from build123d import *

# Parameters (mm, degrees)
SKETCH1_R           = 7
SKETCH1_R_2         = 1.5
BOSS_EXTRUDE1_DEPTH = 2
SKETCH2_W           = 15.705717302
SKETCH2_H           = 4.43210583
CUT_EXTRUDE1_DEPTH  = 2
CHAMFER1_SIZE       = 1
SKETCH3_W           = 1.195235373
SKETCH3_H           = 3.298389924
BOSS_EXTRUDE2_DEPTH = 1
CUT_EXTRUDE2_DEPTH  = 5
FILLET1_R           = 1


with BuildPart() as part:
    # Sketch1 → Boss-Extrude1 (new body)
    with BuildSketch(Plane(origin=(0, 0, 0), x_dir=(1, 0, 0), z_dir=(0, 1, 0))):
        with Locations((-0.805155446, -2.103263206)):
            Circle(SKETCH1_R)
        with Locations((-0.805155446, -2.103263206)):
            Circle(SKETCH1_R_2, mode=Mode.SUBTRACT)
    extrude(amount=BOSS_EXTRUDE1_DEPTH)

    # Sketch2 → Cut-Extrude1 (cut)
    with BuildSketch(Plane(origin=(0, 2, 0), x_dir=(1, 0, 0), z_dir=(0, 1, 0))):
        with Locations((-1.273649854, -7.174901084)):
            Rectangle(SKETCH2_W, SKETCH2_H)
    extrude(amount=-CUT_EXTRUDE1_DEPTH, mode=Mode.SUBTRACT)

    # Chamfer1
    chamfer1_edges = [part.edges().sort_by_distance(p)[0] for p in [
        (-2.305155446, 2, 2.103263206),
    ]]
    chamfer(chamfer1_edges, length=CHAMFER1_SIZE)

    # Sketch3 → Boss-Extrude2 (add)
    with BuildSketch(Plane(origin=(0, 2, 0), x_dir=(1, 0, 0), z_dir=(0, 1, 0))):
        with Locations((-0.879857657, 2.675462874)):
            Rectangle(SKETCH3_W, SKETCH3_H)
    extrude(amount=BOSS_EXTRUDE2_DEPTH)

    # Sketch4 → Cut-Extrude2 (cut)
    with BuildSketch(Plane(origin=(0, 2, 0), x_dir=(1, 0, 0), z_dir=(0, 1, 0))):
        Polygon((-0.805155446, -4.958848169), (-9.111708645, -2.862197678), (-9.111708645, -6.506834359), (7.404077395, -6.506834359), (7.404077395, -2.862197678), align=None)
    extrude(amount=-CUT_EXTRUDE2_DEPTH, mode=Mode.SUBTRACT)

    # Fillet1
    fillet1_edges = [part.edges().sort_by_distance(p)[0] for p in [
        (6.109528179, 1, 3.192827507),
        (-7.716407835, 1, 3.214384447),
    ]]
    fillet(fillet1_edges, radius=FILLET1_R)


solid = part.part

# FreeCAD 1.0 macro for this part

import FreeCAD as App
import Part
import Sketcher


def edges_at(feature, points):
    """Names of the edges that pass closest to the given points."""
    edges = feature.Shape.Edges
    near = lambda p: min(range(len(edges)), key=lambda i: edges[i].distToShape(Part.Vertex(*p))[0])
    return sorted({f"Edge{near(p) + 1}" for p in points})

doc = App.newDocument("Part")
params = doc.addObject("Spreadsheet::Sheet", "Params")
for row, (alias, value) in enumerate([
    ("sketch1_diameter", "14 mm"),
    ("sketch1_diameter2", "3 mm"),
    ("pad1_length", "2 mm"),
    ("pocket1_length", "2 mm"),
    ("chamfer_size", "1 mm"),
    ("pad2_length", "1 mm"),
    ("pocket2_length", "5 mm"),
    ("fillet_radius", "1 mm"),
], start=1):
    params.set(f"A{row}", alias)
    params.set(f"B{row}", "=" + value)
    params.setAlias(f"B{row}", alias)

body = doc.addObject("PartDesign::Body", "Body")

sketch1 = body.newObject("Sketcher::SketchObject", "Sketch")
sketch1.AttachmentSupport = (doc.getObject("XZ_Plane"), [""])
sketch1.MapMode = "FlatFace"
sketch1.addGeometry([
    Part.Circle(App.Vector(-0.805155, 2.103263, 0), App.Vector(0, 0, 1), 7),
    Part.Circle(App.Vector(-0.805155, 2.103263, 0), App.Vector(0, 0, 1), 1.5),
], False)
sketch1.addConstraint([
    Sketcher.Constraint("Coincident", 1, 3, 0, 3),
    Sketcher.Constraint("Diameter", 0, 14.0),
    Sketcher.Constraint("Diameter", 1, 3.0),
    Sketcher.Constraint("DistanceX", 0, 3, -1, 1, 0.805155),
    Sketcher.Constraint("DistanceY", -1, 1, 0, 3, 2.103263),
])
sketch1.setExpression("Constraints[1]", "Params.sketch1_diameter")
sketch1.setExpression("Constraints[2]", "Params.sketch1_diameter2")
pad1 = body.newObject("PartDesign::Pad", "Pad")
pad1.Profile = sketch1
pad1.setExpression("Length", "Params.pad1_length")
pad1.Reversed = True

sketch2 = body.newObject("Sketcher::SketchObject", "Sketch001")
sketch2.AttachmentSupport = (doc.getObject("XZ_Plane"), [""])
sketch2.MapMode = "FlatFace"
sketch2.AttachmentOffset = App.Placement(App.Vector(0, 0, -2), App.Rotation())
sketch2.addGeometry([
    Part.LineSegment(App.Vector(-9.126509, 4.958848, 0), App.Vector(-9.126509, 9.390954, 0)),
    Part.LineSegment(App.Vector(-9.126509, 9.390954, 0), App.Vector(6.579209, 9.390954, 0)),
    Part.LineSegment(App.Vector(6.579209, 9.390954, 0), App.Vector(6.579209, 4.958848, 0)),
    Part.LineSegment(App.Vector(6.579209, 4.958848, 0), App.Vector(-9.126509, 4.958848, 0)),
], False)
sketch2.addConstraint([
    Sketcher.Constraint("Coincident", 0, 2, 1, 1),
    Sketcher.Constraint("Coincident", 1, 2, 2, 1),
    Sketcher.Constraint("Coincident", 2, 2, 3, 1),
    Sketcher.Constraint("Coincident", 3, 2, 0, 1),
    Sketcher.Constraint("Vertical", 0),
    Sketcher.Constraint("Horizontal", 1),
    Sketcher.Constraint("Vertical", 2),
    Sketcher.Constraint("Horizontal", 3),
    Sketcher.Constraint("DistanceX", 1, 1, 1, 2, 15.705717),
    Sketcher.Constraint("DistanceY", 0, 1, 0, 2, 4.432106),
    Sketcher.Constraint("DistanceX", 0, 2, -1, 1, 9.126509),
    Sketcher.Constraint("DistanceY", -1, 1, 2, 2, 4.958848),
])
pocket1 = body.newObject("PartDesign::Pocket", "Pocket")
pocket1.Profile = sketch2
pocket1.setExpression("Length", "Params.pocket1_length")
pocket1.Reversed = True
doc.recompute()

chamfer = body.newObject("PartDesign::Chamfer", "Chamfer")
chamfer.Base = (pocket1, edges_at(pocket1, [(-2.305, 2, 2.103)]))
chamfer.setExpression("Size", "Params.chamfer_size")

sketch3 = body.newObject("Sketcher::SketchObject", "Sketch002")
sketch3.AttachmentSupport = (doc.getObject("XZ_Plane"), [""])
sketch3.MapMode = "FlatFace"
sketch3.AttachmentOffset = App.Placement(App.Vector(0, 0, -2), App.Rotation())
sketch3.addGeometry([
    Part.LineSegment(App.Vector(-1.477475, -4.324658, 0), App.Vector(-1.477475, -1.026268, 0)),
    Part.LineSegment(App.Vector(-1.477475, -1.026268, 0), App.Vector(-0.28224, -1.026268, 0)),
    Part.LineSegment(App.Vector(-0.28224, -1.026268, 0), App.Vector(-0.28224, -4.324658, 0)),
    Part.LineSegment(App.Vector(-0.28224, -4.324658, 0), App.Vector(-1.477475, -4.324658, 0)),
], False)
sketch3.addConstraint([
    Sketcher.Constraint("Coincident", 0, 2, 1, 1),
    Sketcher.Constraint("Coincident", 1, 2, 2, 1),
    Sketcher.Constraint("Coincident", 2, 2, 3, 1),
    Sketcher.Constraint("Coincident", 3, 2, 0, 1),
    Sketcher.Constraint("Vertical", 0),
    Sketcher.Constraint("Horizontal", 1),
    Sketcher.Constraint("Vertical", 2),
    Sketcher.Constraint("Horizontal", 3),
    Sketcher.Constraint("DistanceY", 0, 1, 0, 2, 3.29839),
    Sketcher.Constraint("DistanceX", 1, 1, 1, 2, 1.195235),
    Sketcher.Constraint("DistanceX", 1, 2, -1, 1, 0.28224),
    Sketcher.Constraint("DistanceY", 0, 2, -1, 1, 1.026268),
])
pad2 = body.newObject("PartDesign::Pad", "Pad001")
pad2.Profile = sketch3
pad2.setExpression("Length", "Params.pad2_length")
pad2.Reversed = True

sketch4 = body.newObject("Sketcher::SketchObject", "Sketch003")
sketch4.AttachmentSupport = (doc.getObject("XZ_Plane"), [""])
sketch4.MapMode = "FlatFace"
sketch4.AttachmentOffset = App.Placement(App.Vector(0, 0, -2), App.Rotation())
sketch4.addGeometry([
    Part.LineSegment(App.Vector(-0.805155, 4.958848, 0), App.Vector(-9.111709, 2.862198, 0)),
    Part.LineSegment(App.Vector(-9.111709, 2.862198, 0), App.Vector(-9.111709, 6.506834, 0)),
    Part.LineSegment(App.Vector(-9.111709, 6.506834, 0), App.Vector(7.404077, 6.506834, 0)),
    Part.LineSegment(App.Vector(7.404077, 6.506834, 0), App.Vector(7.404077, 2.862198, 0)),
    Part.LineSegment(App.Vector(7.404077, 2.862198, 0), App.Vector(-0.805155, 4.958848, 0)),
], False)
sketch4.addConstraint([
    Sketcher.Constraint("Coincident", 0, 2, 1, 1),
    Sketcher.Constraint("Coincident", 1, 2, 2, 1),
    Sketcher.Constraint("Coincident", 2, 2, 3, 1),
    Sketcher.Constraint("Coincident", 3, 2, 4, 1),
    Sketcher.Constraint("Coincident", 4, 2, 0, 1),
    Sketcher.Constraint("Vertical", 1),
    Sketcher.Constraint("Horizontal", 2),
    Sketcher.Constraint("Vertical", 3),
    Sketcher.Constraint("Horizontal", 0, 2, 3, 2),
    Sketcher.Constraint("DistanceX", 2, 1, 2, 2, 16.515786),
    Sketcher.Constraint("DistanceY", 1, 1, 1, 2, 3.644637),
    Sketcher.Constraint("DistanceX", 0, 2, -1, 1, 9.111709),
    Sketcher.Constraint("DistanceY", -1, 1, 4, 2, 4.958848),
    Sketcher.Constraint("DistanceY", 3, 2, 4, 2, 2.09665),
    Sketcher.Constraint("Distance", 0, 8.567075),
])
pocket2 = body.newObject("PartDesign::Pocket", "Pocket001")
pocket2.Profile = sketch4
pocket2.setExpression("Length", "Params.pocket2_length")
pocket2.Reversed = True
doc.recompute()

fillet = body.newObject("PartDesign::Fillet", "Fillet")
fillet.Base = (pocket2, edges_at(pocket2, [(6.11, 1, 3.193), (-7.716, 1, 3.214)]))
fillet.setExpression("Radius", "Params.fillet_radius")

doc.recompute()
